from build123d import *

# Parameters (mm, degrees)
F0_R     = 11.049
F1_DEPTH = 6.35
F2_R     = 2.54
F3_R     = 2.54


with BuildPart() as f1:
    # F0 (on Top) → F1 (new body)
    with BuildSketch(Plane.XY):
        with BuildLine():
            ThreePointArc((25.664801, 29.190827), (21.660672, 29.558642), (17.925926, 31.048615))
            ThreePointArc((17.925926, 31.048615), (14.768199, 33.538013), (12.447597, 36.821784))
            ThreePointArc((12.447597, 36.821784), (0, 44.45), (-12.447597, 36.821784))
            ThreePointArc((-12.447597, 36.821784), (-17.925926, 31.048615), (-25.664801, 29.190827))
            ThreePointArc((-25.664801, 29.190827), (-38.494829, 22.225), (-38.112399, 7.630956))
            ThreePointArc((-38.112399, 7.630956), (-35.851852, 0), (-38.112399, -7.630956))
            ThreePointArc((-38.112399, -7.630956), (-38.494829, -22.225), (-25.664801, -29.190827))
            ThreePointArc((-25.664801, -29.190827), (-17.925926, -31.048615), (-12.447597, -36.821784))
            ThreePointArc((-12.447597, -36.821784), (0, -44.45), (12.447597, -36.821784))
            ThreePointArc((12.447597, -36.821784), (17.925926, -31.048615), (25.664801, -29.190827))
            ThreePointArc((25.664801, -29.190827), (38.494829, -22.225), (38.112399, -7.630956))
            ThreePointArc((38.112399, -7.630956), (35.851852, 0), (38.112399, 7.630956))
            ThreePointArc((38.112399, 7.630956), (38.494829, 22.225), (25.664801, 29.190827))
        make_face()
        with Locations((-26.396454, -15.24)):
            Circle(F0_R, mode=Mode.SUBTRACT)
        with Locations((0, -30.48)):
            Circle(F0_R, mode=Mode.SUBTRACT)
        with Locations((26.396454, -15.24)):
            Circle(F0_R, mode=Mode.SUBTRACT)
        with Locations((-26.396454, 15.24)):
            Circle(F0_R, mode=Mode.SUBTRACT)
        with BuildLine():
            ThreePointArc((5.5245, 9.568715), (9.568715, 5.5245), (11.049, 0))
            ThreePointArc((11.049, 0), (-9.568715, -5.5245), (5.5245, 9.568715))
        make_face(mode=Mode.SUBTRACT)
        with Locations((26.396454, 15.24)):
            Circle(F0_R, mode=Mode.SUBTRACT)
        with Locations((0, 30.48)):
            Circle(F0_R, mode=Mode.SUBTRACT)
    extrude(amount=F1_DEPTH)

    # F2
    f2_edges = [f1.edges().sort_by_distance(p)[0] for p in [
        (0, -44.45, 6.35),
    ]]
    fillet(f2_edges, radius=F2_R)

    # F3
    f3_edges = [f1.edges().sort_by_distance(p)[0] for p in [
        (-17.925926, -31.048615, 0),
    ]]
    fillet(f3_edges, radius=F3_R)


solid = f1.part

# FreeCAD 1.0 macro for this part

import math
import FreeCAD as App
import Part
import Sketcher
from FreeCAD import Vector
Q = App.Units.Quantity


def edges_at(feature, points):
    """Names of the edges that pass closest to the given points."""
    edges = feature.Shape.Edges
    near = lambda p: min(range(len(edges)), key=lambda i: edges[i].distToShape(Part.Vertex(*p))[0])
    return sorted({f"Edge{near(p) + 1}" for p in points})

doc = App.newDocument("Part")
body = doc.addObject("PartDesign::Body", "Body")

sketch1 = body.newObject("Sketcher::SketchObject", "Sketch")
sketch1.AttachmentSupport = (doc.getObject("XY_Plane"), [""])
sketch1.MapMode = "FlatFace"
sketch1.addGeometry([
    Part.ArcOfCircle(Part.Circle(Vector(24.931041, 43.181822, 0), Vector(0, 0, 1), 14.010223), math.radians(-120.000016), math.radians(-86.997863)),
    Part.ArcOfCircle(Part.Circle(Vector(24.931032, 43.181823, 0), Vector(0, 0, 1), 14.010219), math.radians(-153.002146), math.radians(-119.999983)),
    Part.ArcOfCircle(Part.Circle(Vector(0, 30.48, 0), Vector(0, 0, 1), 13.97), math.radians(26.997867), math.radians(153.002133)),
    Part.ArcOfCircle(Part.Circle(Vector(-24.931044, 43.181834, 0), Vector(0, 0, 1), 14.010235), math.radians(-93.002123), math.radians(-26.997873)),
    Part.ArcOfCircle(Part.Circle(Vector(-26.396454, 15.239999, 0), Vector(0, 0, 1), 13.97), math.radians(86.997865), math.radians(213.002132)),
    Part.ArcOfCircle(Part.Circle(Vector(-49.862081, 0, 0), Vector(0, 0, 1), 14.010229), math.radians(-33.002138), math.radians(33.002138)),
    Part.ArcOfCircle(Part.Circle(Vector(-26.396454, -15.239999, 0), Vector(0, 0, 1), 13.97), math.radians(146.997868), math.radians(273.002135)),
    Part.ArcOfCircle(Part.Circle(Vector(-24.931044, -43.181834, 0), Vector(0, 0, 1), 14.010235), math.radians(26.997873), math.radians(93.002123)),
    Part.ArcOfCircle(Part.Circle(Vector(0, -30.48, 0), Vector(0, 0, 1), 13.97), math.radians(-153.002133), math.radians(-26.997867)),
    Part.ArcOfCircle(Part.Circle(Vector(24.931044, -43.181834, 0), Vector(0, 0, 1), 14.010235), math.radians(86.997877), math.radians(153.002127)),
    Part.ArcOfCircle(Part.Circle(Vector(26.396454, -15.239999, 0), Vector(0, 0, 1), 13.97), math.radians(-93.002135), math.radians(33.002132)),
    Part.ArcOfCircle(Part.Circle(Vector(49.862081, 0, 0), Vector(0, 0, 1), 14.010229), math.radians(146.997862), math.radians(213.002138)),
    Part.ArcOfCircle(Part.Circle(Vector(26.396454, 15.239999, 0), Vector(0, 0, 1), 13.97), math.radians(-33.002132), math.radians(93.002135)),
    Part.Circle(Vector(-26.396454, -15.24, 0), Vector(0, 0, 1), 11.049),
    Part.Circle(Vector(0, -30.48, 0), Vector(0, 0, 1), 11.049),
    Part.Circle(Vector(26.396454, -15.24, 0), Vector(0, 0, 1), 11.049),
    Part.Circle(Vector(-26.396454, 15.24, 0), Vector(0, 0, 1), 11.049),
    Part.ArcOfCircle(Part.Circle(Vector(0, 0, 0), Vector(0, 0, 1), 11.049), math.radians(59.999999), math.radians(359.999999)),
    Part.ArcOfCircle(Part.Circle(Vector(0.000001, 0.000001, 0), Vector(0, 0, 1), 11.048999), math.radians(-0.000004), math.radians(60.000002)),
    Part.Circle(Vector(26.396454, 15.24, 0), Vector(0, 0, 1), 11.049),
    Part.Circle(Vector(0, 30.48, 0), Vector(0, 0, 1), 11.049),
], False)
sketch1.addConstraint([
    Sketcher.Constraint("Tangent", 0, 1, 1, 2),
    Sketcher.Constraint("Tangent", 1, 1, 2, 1),
    Sketcher.Constraint("Tangent", 2, 2, 3, 2),
    Sketcher.Constraint("Tangent", 3, 1, 4, 1),
    Sketcher.Constraint("Tangent", 4, 2, 5, 2),
    Sketcher.Constraint("Tangent", 5, 1, 6, 1),
    Sketcher.Constraint("Tangent", 6, 2, 7, 2),
    Sketcher.Constraint("Tangent", 7, 1, 8, 1),
    Sketcher.Constraint("Tangent", 8, 2, 9, 2),
    Sketcher.Constraint("Tangent", 9, 1, 10, 1),
    Sketcher.Constraint("Tangent", 10, 2, 11, 2),
    Sketcher.Constraint("Tangent", 11, 1, 12, 1),
    Sketcher.Constraint("Tangent", 12, 2, 0, 2),
    Sketcher.Constraint("Tangent", 17, 1, 18, 2),
    Sketcher.Constraint("Coincident", 18, 1, 17, 2),
    Sketcher.Constraint("Coincident", 17, 3, -1, 1),
    Sketcher.Constraint("Coincident", 13, 3, 6, 3),
    Sketcher.Constraint("Coincident", 14, 3, 8, 3),
    Sketcher.Constraint("Coincident", 15, 3, 10, 3),
    Sketcher.Constraint("Coincident", 16, 3, 4, 3),
    Sketcher.Constraint("Coincident", 19, 3, 12, 3),
    Sketcher.Constraint("Coincident", 20, 3, 2, 3),
    Sketcher.Constraint("Equal", 2, 4),
    Sketcher.Constraint("Equal", 4, 6),
    Sketcher.Constraint("Equal", 3, 7),
    Sketcher.Constraint("Equal", 6, 8),
    Sketcher.Constraint("Equal", 7, 9),
    Sketcher.Constraint("Equal", 8, 10),
    Sketcher.Constraint("Equal", 5, 11),
    Sketcher.Constraint("Equal", 10, 12),
    Sketcher.Constraint("Equal", 13, 14),
    Sketcher.Constraint("Equal", 14, 15),
    Sketcher.Constraint("Equal", 15, 16),
    Sketcher.Constraint("Equal", 16, 17),
    Sketcher.Constraint("Equal", 18, 19),
    Sketcher.Constraint("Equal", 19, 20),
    Sketcher.Constraint("Symmetric", 2, 3, 8, 3, -1, 1),
    Sketcher.Constraint("Symmetric", 4, 3, 10, 3, -1, 1),
    Sketcher.Constraint("Symmetric", 6, 3, 12, 3, -1, 1),
    Sketcher.Constraint("Symmetric", 7, 3, 9, 3, -2),
    Sketcher.Constraint("PointOnObject", 5, 3, -1),
    Sketcher.Constraint("PointOnObject", 18, 1, -1),
    Sketcher.Constraint("Horizontal", 1, 1, 2, 2),
    Sketcher.Constraint("Horizontal", 3, 1, 12, 2),
    Sketcher.Constraint("Diameter", 13, Q("0.87 in")),
    Sketcher.Constraint("Radius", 2, Q("0.55 in")),
    Sketcher.Constraint("DistanceY", -1, 1, 2, 3, Q("1.2 in")),
    Sketcher.Constraint("DistanceY", -1, 1, 4, 3, Q("0.6 in")),
    Sketcher.Constraint("Radius", 1, 14.010219),
    Sketcher.Constraint("Radius", 5, 14.010229),
    Sketcher.Constraint("DistanceX", -1, 1, 17, 1, Q("0.2175 in")),
    Sketcher.Constraint("DistanceX", 3, 1, -1, 1, 25.664801),
    Sketcher.Constraint("DistanceX", 1, 1, 0, 1, 5.478329),
])
pad1 = body.newObject("PartDesign::Pad", "Pad")
pad1.Profile = sketch1
pad1.Length = Q("0.25 in")
doc.recompute()

fillet = body.newObject("PartDesign::Fillet", "Fillet")
fillet.Base = (pad1, edges_at(pad1, [(0, -44.45, 6.35)]))
fillet.Radius = Q("0.1 in")
doc.recompute()

fillet2 = body.newObject("PartDesign::Fillet", "Fillet001")
fillet2.Base = (fillet, edges_at(fillet, [(-17.926, -31.049, 0)]))
fillet2.Radius = Q("0.1 in")

doc.recompute()
